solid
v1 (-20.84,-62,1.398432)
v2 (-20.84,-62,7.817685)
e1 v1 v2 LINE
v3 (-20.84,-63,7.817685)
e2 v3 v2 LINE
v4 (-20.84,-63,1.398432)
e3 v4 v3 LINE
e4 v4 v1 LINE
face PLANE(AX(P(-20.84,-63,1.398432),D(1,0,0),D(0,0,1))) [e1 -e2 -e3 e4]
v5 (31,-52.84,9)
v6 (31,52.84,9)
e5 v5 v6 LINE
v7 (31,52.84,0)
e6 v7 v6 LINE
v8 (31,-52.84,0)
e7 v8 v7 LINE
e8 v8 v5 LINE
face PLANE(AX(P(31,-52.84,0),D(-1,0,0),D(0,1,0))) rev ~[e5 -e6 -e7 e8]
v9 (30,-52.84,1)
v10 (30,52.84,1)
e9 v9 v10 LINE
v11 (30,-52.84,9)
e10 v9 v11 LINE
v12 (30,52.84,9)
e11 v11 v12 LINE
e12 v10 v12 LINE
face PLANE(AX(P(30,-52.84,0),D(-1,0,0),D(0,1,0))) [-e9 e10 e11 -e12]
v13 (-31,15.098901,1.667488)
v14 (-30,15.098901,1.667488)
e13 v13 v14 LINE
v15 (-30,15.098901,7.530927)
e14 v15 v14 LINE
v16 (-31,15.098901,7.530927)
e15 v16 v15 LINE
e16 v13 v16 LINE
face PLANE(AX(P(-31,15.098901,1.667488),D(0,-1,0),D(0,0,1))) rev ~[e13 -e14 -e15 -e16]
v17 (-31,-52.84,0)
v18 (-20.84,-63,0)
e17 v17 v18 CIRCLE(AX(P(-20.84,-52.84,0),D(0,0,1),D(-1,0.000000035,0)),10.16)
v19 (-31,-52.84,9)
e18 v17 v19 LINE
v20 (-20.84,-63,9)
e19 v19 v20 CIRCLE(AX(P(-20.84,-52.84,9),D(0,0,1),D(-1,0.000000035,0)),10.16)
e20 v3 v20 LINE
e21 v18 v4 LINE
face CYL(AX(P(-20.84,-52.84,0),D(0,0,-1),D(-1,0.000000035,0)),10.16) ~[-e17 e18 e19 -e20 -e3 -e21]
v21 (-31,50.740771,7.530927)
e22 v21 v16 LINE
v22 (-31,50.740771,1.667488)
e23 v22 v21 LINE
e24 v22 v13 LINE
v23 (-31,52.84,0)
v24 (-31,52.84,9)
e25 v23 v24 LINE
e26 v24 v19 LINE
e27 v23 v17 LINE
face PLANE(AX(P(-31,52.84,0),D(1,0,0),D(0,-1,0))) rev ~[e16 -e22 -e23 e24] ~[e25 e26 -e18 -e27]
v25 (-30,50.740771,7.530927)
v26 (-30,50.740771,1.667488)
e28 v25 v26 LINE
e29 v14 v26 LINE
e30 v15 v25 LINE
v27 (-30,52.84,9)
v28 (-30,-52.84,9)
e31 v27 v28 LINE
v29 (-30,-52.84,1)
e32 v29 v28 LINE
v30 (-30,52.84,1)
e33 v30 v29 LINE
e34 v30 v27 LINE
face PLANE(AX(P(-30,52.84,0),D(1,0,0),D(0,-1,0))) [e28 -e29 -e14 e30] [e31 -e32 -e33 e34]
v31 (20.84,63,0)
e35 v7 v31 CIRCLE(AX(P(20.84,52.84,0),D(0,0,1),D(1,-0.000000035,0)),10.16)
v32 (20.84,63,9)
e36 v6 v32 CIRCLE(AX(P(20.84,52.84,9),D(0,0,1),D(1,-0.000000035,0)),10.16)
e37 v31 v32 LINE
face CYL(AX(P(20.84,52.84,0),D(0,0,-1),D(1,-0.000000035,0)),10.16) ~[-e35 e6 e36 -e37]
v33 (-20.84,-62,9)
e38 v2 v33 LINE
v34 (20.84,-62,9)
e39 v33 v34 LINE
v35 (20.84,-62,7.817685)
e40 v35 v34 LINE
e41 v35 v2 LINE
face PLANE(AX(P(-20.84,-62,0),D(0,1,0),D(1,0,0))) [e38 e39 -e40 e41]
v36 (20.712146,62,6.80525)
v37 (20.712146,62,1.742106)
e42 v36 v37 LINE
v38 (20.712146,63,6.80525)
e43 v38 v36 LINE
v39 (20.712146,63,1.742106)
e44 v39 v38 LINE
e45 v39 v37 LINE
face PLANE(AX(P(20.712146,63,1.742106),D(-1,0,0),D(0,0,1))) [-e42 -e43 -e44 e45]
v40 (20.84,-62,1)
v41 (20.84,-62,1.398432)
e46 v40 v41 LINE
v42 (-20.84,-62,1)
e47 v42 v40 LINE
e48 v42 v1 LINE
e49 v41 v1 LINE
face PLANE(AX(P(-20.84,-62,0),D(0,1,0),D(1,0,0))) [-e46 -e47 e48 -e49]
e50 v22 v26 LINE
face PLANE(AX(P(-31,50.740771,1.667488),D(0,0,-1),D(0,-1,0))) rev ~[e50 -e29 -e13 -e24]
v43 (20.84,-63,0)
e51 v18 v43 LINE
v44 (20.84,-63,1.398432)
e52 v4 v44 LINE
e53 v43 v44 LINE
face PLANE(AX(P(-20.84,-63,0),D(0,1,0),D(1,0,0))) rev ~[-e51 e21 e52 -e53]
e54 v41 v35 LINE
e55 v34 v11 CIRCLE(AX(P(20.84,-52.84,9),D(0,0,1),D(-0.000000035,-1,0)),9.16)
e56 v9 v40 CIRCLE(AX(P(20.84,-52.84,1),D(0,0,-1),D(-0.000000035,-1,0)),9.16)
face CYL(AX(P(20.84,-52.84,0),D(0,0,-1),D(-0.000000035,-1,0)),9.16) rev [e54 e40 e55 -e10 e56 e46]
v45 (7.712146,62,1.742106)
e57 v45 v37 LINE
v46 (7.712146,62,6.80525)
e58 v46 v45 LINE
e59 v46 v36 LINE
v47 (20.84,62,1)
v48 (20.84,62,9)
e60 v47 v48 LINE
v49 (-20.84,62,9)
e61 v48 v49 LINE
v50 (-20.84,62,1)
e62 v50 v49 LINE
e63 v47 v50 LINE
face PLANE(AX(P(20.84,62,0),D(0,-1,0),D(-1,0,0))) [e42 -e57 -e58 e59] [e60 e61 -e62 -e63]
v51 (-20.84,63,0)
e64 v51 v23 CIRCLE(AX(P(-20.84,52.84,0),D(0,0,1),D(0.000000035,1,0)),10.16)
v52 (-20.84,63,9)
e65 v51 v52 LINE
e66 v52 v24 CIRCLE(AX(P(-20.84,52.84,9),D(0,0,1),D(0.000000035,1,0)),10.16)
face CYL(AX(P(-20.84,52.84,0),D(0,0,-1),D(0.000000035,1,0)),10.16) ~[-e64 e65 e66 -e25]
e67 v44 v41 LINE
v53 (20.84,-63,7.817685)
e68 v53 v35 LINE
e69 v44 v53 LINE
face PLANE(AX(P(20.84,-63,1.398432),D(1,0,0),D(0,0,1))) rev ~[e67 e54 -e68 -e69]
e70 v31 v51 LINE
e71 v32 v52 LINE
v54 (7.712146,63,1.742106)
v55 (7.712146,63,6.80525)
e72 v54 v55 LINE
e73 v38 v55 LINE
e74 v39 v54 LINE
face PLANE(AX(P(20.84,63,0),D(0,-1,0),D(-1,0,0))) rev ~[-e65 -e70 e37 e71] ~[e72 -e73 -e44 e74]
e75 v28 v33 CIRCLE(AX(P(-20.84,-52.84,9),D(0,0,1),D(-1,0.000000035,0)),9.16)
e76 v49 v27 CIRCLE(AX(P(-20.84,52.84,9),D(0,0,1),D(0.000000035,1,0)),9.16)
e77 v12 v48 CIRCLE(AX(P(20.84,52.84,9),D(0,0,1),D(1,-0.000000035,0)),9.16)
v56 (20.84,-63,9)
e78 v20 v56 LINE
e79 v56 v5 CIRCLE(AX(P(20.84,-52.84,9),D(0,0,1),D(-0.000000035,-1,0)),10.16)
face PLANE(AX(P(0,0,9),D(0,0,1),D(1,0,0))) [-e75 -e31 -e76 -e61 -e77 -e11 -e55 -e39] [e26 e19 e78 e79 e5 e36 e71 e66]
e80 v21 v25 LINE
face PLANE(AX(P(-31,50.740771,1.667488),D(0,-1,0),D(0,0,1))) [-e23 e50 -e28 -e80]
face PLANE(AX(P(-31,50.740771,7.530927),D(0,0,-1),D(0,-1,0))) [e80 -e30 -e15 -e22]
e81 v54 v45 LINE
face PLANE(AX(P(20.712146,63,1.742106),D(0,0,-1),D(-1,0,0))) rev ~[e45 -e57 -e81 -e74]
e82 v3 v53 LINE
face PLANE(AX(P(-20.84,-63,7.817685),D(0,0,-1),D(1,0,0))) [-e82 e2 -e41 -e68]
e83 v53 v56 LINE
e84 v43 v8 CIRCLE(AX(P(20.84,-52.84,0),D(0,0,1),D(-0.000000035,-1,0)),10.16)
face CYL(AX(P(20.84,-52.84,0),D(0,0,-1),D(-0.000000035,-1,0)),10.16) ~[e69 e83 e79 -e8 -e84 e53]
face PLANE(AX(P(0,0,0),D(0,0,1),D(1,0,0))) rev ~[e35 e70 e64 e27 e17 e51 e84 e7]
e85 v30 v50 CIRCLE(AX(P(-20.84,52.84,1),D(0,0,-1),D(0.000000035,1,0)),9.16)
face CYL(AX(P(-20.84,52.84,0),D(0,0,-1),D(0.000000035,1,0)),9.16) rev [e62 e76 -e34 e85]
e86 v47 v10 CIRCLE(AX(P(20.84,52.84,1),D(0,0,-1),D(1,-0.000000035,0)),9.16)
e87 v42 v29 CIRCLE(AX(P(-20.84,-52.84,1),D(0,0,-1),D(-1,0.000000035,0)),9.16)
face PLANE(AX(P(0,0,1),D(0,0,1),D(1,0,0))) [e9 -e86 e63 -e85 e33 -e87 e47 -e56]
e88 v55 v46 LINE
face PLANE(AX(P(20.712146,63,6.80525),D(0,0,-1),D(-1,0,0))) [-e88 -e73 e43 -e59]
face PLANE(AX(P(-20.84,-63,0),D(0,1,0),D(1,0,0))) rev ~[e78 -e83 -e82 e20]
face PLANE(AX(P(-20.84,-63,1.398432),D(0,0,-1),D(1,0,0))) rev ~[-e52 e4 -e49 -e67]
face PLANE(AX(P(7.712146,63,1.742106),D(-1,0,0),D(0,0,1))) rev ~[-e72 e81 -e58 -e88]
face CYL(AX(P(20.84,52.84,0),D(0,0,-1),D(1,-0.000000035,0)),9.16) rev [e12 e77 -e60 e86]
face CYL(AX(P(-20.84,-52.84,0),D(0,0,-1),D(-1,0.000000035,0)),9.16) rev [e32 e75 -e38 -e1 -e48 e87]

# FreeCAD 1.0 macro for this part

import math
import FreeCAD as App
import Part
import Sketcher
from FreeCAD import Vector
Q = App.Units.Quantity


def faces_at(feature, points):
    """Names of the faces that lie closest to the given points."""
    faces = feature.Shape.Faces
    near = lambda p: min(range(len(faces)), key=lambda i: faces[i].distToShape(Part.Vertex(*p))[0])
    return sorted({f"Face{near(p) + 1}" for p in points})


def add_polygon(sketch, points):
    """Adds a closed chain of lines whose ends are joined by coincident constraints."""
    first, n = sketch.GeometryCount, len(points)
    for a, b in zip(points, points[1:] + points[:1]):
        sketch.addGeometry(Part.LineSegment(App.Vector(*a, 0), App.Vector(*b, 0)), False)
    for i in range(n):
        sketch.addConstraint(Sketcher.Constraint("Coincident", first + i, 2, first + (i + 1) % n, 1))

doc = App.newDocument("Part")
body = doc.addObject("PartDesign::Body", "Body")

sketch1 = doc.addObject("Sketcher::SketchObject", "Sketch")
body.addObject(sketch1)
sketch1.AttachmentSupport = (doc.XY_Plane, [""])
sketch1.MapMode = "FlatFace"
sketch1.addGeometry(Part.ArcOfCircle(Part.Circle(Vector(20.84, 52.84, 0), Vector(0, 0, 1), 10.16), math.radians(-0.000002), math.radians(90.000002)), False)
sketch1.addGeometry(Part.LineSegment(Vector(20.84, 63, 0), Vector(-20.84, 63, 0)), False)
sketch1.addGeometry(Part.ArcOfCircle(Part.Circle(Vector(-20.84, 52.84, 0), Vector(0, 0, 1), 10.16), math.radians(89.999998), math.radians(180.000002)), False)
sketch1.addGeometry(Part.LineSegment(Vector(-31, 52.84, 0), Vector(-31, -52.84, 0)), False)
sketch1.addGeometry(Part.ArcOfCircle(Part.Circle(Vector(-20.84, -52.84, 0), Vector(0, 0, 1), 10.16), math.radians(179.999998), math.radians(270.000002)), False)
sketch1.addGeometry(Part.LineSegment(Vector(-20.84, -63, 0), Vector(20.84, -63, 0)), False)
sketch1.addGeometry(Part.ArcOfCircle(Part.Circle(Vector(20.84, -52.84, 0), Vector(0, 0, 1), 10.16), math.radians(-90.000002), math.radians(0.000002)), False)
sketch1.addGeometry(Part.LineSegment(Vector(31, -52.84, 0), Vector(31, 52.84, 0)), False)
sketch1.addConstraint(Sketcher.Constraint("Tangent", 0, 2, 1, 1))
sketch1.addConstraint(Sketcher.Constraint("Tangent", 1, 2, 2, 1))
sketch1.addConstraint(Sketcher.Constraint("Tangent", 2, 2, 3, 1))
sketch1.addConstraint(Sketcher.Constraint("Tangent", 3, 2, 4, 1))
sketch1.addConstraint(Sketcher.Constraint("Tangent", 4, 2, 5, 1))
sketch1.addConstraint(Sketcher.Constraint("Tangent", 5, 2, 6, 1))
sketch1.addConstraint(Sketcher.Constraint("Tangent", 6, 2, 7, 1))
sketch1.addConstraint(Sketcher.Constraint("Tangent", 7, 2, 0, 1))
sketch1.addConstraint(Sketcher.Constraint("Horizontal", 1))
sketch1.addConstraint(Sketcher.Constraint("Vertical", 3))
sketch1.addConstraint(Sketcher.Constraint("Horizontal", 5))
sketch1.addConstraint(Sketcher.Constraint("Vertical", 7))
sketch1.addConstraint(Sketcher.Constraint("Equal", 0, 2))
sketch1.addConstraint(Sketcher.Constraint("Equal", 2, 4))
sketch1.addConstraint(Sketcher.Constraint("Equal", 4, 6))
sketch1.addConstraint(Sketcher.Constraint("Symmetric", 0, 3, 4, 3, -1, 1))
sketch1.addConstraint(Sketcher.Constraint("Radius", 0, Q("10.16 mm")))
sketch1.addConstraint(Sketcher.Constraint("DistanceY", -1, 1, 0, 2, Q("63 mm")))
sketch1.addConstraint(Sketcher.Constraint("DistanceX", 2, 2, -1, 1, Q("31 mm")))
pad1 = doc.addObject("PartDesign::Pad", "Pad")
body.addObject(pad1)
pad1.Profile = sketch1
pad1.Length = 9
doc.recompute()

thickness = doc.addObject("PartDesign::Thickness", "Thickness")
body.addObject(thickness)
thickness.Base = (pad1, faces_at(pad1, [(0, 0, 9)]))
thickness.Value = 1
thickness.Reversed = True
thickness.Join = "Arc"

sketch2 = doc.addObject("Sketcher::SketchObject", "Sketch001")
body.addObject(sketch2)
sketch2.AttachmentSupport = (doc.XZ_Plane, [""])
sketch2.MapMode = "FlatFace"
sketch2.AttachmentOffset = App.Placement(Vector(0, 0, -63), App.Rotation())
add_polygon(sketch2, [(20.712146, 6.80525), (20.712146, 1.742106), (7.712146, 1.742106), (7.712146, 6.80525)])
sketch2.addConstraint(Sketcher.Constraint("Vertical", 0))
sketch2.addConstraint(Sketcher.Constraint("Horizontal", 1))
sketch2.addConstraint(Sketcher.Constraint("Vertical", 2))
sketch2.addConstraint(Sketcher.Constraint("Horizontal", 3))
sketch2.addConstraint(Sketcher.Constraint("DistanceX", 1, 2, 1, 1, Q("13 mm")))
sketch2.addConstraint(Sketcher.Constraint("DistanceY", 0, 2, 0, 1, Q("5.063144 mm")))
sketch2.addConstraint(Sketcher.Constraint("DistanceY", -1, 1, 2, 2, Q("6.80525 mm")))
sketch2.addConstraint(Sketcher.Constraint("DistanceX", -1, 1, 0, 2, Q("20.712146 mm")))
pocket1 = doc.addObject("PartDesign::Pocket", "Pocket")
body.addObject(pocket1)
pocket1.Profile = sketch2
pocket1.Length = 8.9
pocket1.Reversed = True

sketch3 = doc.addObject("Sketcher::SketchObject", "Sketch002")
body.addObject(sketch3)
sketch3.AttachmentSupport = (doc.YZ_Plane, [""])
sketch3.MapMode = "FlatFace"
sketch3.AttachmentOffset = App.Placement(Vector(0, 0, -31), App.Rotation())
add_polygon(sketch3, [(50.740771, 7.530927), (50.740771, 1.667488), (15.098901, 1.667488), (15.098901, 7.530927)])
sketch3.addConstraint(Sketcher.Constraint("Vertical", 0))
sketch3.addConstraint(Sketcher.Constraint("Horizontal", 1))
sketch3.addConstraint(Sketcher.Constraint("Vertical", 2))
sketch3.addConstraint(Sketcher.Constraint("Horizontal", 3))
sketch3.addConstraint(Sketcher.Constraint("DistanceX", 1, 2, 1, 1, Q("35.64187 mm")))
sketch3.addConstraint(Sketcher.Constraint("DistanceY", 0, 2, 0, 1, Q("5.863439 mm")))
sketch3.addConstraint(Sketcher.Constraint("DistanceX", -1, 1, 1, 2, Q("15.098901 mm")))
sketch3.addConstraint(Sketcher.Constraint("DistanceY", -1, 1, 0, 2, Q("1.667488 mm")))
pocket2 = doc.addObject("PartDesign::Pocket", "Pocket001")
body.addObject(pocket2)
pocket2.Profile = sketch3
pocket2.Length = 9.9
pocket2.Reversed = True

sketch4 = doc.addObject("Sketcher::SketchObject", "Sketch003")
body.addObject(sketch4)
sketch4.AttachmentSupport = (doc.XZ_Plane, [""])
sketch4.MapMode = "FlatFace"
sketch4.AttachmentOffset = App.Placement(Vector(0, 0, 63), App.Rotation())
add_polygon(sketch4, [(-20.84, 7.817685), (-20.84, 1.398432), (20.84, 1.398432), (20.84, 7.817685)])
sketch4.addConstraint(Sketcher.Constraint("Vertical", 0))
sketch4.addConstraint(Sketcher.Constraint("Horizontal", 1))
sketch4.addConstraint(Sketcher.Constraint("Vertical", 2))
sketch4.addConstraint(Sketcher.Constraint("Horizontal", 3))
sketch4.addConstraint(Sketcher.Constraint("DistanceX", 1, 1, 1, 2, Q("41.68 mm")))
sketch4.addConstraint(Sketcher.Constraint("DistanceX", 0, 2, -1, 1, Q("20.84 mm")))
sketch4.addConstraint(Sketcher.Constraint("DistanceY", 0, 2, 0, 1, Q("6.419253 mm")))
sketch4.addConstraint(Sketcher.Constraint("DistanceY", -1, 1, 0, 2, Q("1.398432 mm")))
pocket3 = doc.addObject("PartDesign::Pocket", "Pocket002")
body.addObject(pocket3)
pocket3.Profile = sketch4
pocket3.Length = 25

doc.recompute()
